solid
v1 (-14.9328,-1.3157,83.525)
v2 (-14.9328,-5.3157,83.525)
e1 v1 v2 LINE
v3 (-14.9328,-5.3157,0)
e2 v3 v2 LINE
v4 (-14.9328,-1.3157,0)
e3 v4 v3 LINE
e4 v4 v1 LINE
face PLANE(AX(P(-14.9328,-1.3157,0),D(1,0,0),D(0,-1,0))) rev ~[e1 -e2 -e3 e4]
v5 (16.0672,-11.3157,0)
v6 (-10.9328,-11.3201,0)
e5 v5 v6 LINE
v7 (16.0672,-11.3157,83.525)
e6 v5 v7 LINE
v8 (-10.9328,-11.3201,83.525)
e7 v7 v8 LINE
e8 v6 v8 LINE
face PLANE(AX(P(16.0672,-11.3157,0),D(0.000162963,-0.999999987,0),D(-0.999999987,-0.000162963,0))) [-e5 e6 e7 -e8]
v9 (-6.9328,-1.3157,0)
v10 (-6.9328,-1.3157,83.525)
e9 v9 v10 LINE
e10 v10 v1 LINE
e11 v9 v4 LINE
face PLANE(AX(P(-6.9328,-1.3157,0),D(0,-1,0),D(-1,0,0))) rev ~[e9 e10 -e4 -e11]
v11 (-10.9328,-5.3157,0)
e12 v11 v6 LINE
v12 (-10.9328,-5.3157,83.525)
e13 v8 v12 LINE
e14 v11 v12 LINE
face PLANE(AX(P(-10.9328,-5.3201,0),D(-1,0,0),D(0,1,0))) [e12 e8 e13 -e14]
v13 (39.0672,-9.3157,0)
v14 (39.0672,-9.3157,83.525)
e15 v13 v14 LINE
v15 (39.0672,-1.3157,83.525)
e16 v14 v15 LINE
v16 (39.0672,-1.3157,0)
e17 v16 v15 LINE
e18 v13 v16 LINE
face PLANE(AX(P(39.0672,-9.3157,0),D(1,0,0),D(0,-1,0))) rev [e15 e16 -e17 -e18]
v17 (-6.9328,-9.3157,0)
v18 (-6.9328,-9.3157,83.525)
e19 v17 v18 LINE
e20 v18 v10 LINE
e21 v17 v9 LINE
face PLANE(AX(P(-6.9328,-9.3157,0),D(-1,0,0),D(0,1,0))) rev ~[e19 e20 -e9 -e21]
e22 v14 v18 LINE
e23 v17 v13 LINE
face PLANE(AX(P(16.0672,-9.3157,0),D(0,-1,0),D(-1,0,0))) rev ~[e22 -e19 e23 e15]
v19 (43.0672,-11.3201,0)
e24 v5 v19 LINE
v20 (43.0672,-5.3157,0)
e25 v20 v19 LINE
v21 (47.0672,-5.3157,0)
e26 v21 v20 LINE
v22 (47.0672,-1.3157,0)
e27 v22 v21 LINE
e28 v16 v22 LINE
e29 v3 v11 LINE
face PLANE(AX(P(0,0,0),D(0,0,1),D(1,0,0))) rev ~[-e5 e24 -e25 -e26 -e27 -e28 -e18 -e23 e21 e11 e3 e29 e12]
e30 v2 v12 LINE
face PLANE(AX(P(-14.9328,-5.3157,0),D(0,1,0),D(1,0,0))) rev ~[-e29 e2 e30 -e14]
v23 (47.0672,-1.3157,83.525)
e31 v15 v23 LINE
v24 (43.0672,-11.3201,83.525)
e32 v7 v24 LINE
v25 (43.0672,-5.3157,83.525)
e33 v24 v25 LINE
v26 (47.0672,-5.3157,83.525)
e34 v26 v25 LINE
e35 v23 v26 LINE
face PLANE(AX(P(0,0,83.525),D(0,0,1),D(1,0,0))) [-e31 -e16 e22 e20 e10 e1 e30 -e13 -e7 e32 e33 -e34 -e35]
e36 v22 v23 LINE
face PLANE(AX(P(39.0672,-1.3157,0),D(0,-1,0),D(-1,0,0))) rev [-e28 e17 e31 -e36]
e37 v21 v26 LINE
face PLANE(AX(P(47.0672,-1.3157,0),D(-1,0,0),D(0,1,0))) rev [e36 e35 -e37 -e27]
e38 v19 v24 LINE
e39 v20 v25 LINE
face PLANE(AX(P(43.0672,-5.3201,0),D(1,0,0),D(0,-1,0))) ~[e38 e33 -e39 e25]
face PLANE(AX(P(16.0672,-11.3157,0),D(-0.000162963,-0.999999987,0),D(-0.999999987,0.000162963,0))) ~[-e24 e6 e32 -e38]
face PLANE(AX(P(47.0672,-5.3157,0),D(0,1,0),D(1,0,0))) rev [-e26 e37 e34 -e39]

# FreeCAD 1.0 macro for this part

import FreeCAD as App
import Part
import Sketcher

V = App.Vector
Q = App.Units.Quantity


def add_polygon(sketch, points):
    """Adds a closed chain of lines whose ends are joined by coincident constraints."""
    first, n = sketch.GeometryCount, len(points)
    for a, b in zip(points, points[1:] + points[:1]):
        sketch.addGeometry(Part.LineSegment(App.Vector(*a, 0), App.Vector(*b, 0)), False)
    for i in range(n):
        sketch.addConstraint(Sketcher.Constraint("Coincident", first + i, 2, first + (i + 1) % n, 1))

doc = App.newDocument("Part")
body = doc.addObject("PartDesign::Body", "Body")

sketch1 = doc.addObject("Sketcher::SketchObject", "Sketch")
body.addObject(sketch1)
sketch1.AttachmentSupport = (doc.XY_Plane, [""])
sketch1.MapMode = "FlatFace"
add_polygon(sketch1, [(-10.9, -5.3), (-10.9, -11.3), (16.1, -11.3), (16.1, -9.3), (-6.9, -9.3), (-6.9, -1.3), (-14.9, -1.3), (-14.9, -5.3)])
sketch1.addConstraint(Sketcher.Constraint("Vertical", 0))
sketch1.addConstraint(Sketcher.Constraint("Vertical", 2))
sketch1.addConstraint(Sketcher.Constraint("Horizontal", 3))
sketch1.addConstraint(Sketcher.Constraint("Vertical", 4))
sketch1.addConstraint(Sketcher.Constraint("Horizontal", 5))
sketch1.addConstraint(Sketcher.Constraint("Vertical", 6))
sketch1.addConstraint(Sketcher.Constraint("Horizontal", 7))
sketch1.addConstraint(Sketcher.Constraint("Equal", 5, 4))
sketch1.addConstraint(Sketcher.Constraint("Equal", 7, 6))
sketch1.addConstraint(Sketcher.Constraint("DistanceX", 3, 2, 3, 1, Q("23 mm")))
sketch1.addConstraint(Sketcher.Constraint("DistanceX", 5, 2, 5, 1, Q("8 mm")))
sketch1.addConstraint(Sketcher.Constraint("DistanceX", 7, 1, 7, 2, Q("4 mm")))
sketch1.addConstraint(Sketcher.Constraint("DistanceY", 2, 1, 2, 2, Q("2 mm")))
sketch1.addConstraint(Sketcher.Constraint("Angle", 1, Q("0.0093 deg")))
sketch1.addConstraint(Sketcher.Constraint("DistanceY", 0, 2, -1, 1, Q("11.32 mm")))
sketch1.addConstraint(Sketcher.Constraint("DistanceX", 0, 2, -1, 1, Q("10.9328 mm")))
pad1 = doc.addObject("PartDesign::Pad", "Pad")
body.addObject(pad1)
pad1.Profile = sketch1
pad1.Length = 83.525
doc.recompute()

datumplane = doc.addObject("PartDesign::Plane", "DatumPlane")
body.addObject(datumplane)
datumplane.AttachmentSupport = (doc.YZ_Plane, [""])
datumplane.MapMode = "FlatFace"
datumplane.AttachmentOffset = App.Placement(V(0, 0, 16.0672), App.Rotation())
mirrored = doc.addObject("PartDesign::Mirrored", "Mirrored")
body.addObject(mirrored)
mirrored.Originals = [pad1]
mirrored.MirrorPlane = (datumplane, [""])
body.Tip = mirrored

doc.recompute()
